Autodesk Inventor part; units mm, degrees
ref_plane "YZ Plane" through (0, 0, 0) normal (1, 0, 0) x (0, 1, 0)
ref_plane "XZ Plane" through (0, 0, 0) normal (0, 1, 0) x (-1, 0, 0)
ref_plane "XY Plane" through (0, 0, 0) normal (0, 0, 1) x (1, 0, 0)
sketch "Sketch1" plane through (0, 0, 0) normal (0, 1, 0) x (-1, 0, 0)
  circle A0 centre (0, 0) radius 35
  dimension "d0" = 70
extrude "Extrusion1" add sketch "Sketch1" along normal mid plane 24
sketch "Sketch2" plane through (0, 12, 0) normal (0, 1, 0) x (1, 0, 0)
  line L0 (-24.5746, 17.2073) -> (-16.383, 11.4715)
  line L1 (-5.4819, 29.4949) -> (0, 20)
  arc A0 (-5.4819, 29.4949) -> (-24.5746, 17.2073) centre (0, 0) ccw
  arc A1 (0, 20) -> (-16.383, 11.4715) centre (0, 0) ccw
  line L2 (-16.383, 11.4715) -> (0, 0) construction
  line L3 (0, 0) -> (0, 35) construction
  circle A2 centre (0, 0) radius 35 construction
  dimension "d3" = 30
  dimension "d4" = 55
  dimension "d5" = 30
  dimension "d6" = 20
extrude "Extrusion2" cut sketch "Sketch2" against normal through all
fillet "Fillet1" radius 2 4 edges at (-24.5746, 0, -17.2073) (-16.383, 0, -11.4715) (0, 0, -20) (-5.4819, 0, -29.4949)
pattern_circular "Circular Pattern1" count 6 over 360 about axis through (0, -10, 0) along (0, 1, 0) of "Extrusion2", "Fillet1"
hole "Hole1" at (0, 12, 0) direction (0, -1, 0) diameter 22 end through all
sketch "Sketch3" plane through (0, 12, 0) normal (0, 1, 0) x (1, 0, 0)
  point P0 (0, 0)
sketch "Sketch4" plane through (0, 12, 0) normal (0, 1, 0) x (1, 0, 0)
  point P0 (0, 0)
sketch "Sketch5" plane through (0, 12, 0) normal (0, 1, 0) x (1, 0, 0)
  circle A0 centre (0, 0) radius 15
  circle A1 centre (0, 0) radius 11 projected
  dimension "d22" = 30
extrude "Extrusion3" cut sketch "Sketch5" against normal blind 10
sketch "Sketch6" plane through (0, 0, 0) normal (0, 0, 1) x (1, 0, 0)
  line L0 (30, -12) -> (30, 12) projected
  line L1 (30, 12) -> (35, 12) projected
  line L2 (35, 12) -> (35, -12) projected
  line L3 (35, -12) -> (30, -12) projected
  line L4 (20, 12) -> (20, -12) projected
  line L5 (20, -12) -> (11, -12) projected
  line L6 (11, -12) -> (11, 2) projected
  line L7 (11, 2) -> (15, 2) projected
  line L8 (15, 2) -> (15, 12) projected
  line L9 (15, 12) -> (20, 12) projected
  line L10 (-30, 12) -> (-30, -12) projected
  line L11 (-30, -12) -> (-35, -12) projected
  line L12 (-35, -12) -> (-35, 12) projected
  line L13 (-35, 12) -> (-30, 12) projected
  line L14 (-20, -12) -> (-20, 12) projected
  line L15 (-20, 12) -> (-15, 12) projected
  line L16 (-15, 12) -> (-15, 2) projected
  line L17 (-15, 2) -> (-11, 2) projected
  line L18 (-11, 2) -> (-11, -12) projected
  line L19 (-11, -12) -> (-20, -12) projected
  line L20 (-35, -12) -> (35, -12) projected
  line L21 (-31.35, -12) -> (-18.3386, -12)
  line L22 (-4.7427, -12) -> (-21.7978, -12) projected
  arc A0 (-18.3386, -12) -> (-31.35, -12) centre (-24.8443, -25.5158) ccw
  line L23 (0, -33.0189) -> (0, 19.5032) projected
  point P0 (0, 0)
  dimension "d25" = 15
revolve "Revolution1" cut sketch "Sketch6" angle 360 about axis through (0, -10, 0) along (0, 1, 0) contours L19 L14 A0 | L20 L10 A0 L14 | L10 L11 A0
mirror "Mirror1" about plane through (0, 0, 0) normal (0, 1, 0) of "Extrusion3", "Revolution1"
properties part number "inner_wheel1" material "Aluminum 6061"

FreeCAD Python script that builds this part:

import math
import FreeCAD as App
import Part
import Sketcher
Q = App.Units.Quantity


def edges_at(feature, points):
    """Names of the edges that pass closest to the given points."""
    edges = feature.Shape.Edges
    near = lambda p: min(range(len(edges)), key=lambda i: edges[i].distToShape(Part.Vertex(*p))[0])
    return sorted({f"Edge{near(p) + 1}" for p in points})

doc = App.newDocument("Part")
body = doc.addObject("PartDesign::Body", "Body")

sketch1 = doc.addObject("Sketcher::SketchObject", "Sketch")
body.addObject(sketch1)
sketch1.AttachmentSupport = (doc.XZ_Plane, [""])
sketch1.MapMode = "FlatFace"
sketch1.addGeometry(Part.Circle(App.Vector(0, 0, 0), App.Vector(0, 0, 1), 35), False)
sketch1.addConstraint([
    Sketcher.Constraint("Coincident", 0, 3, -1, 1),
    Sketcher.Constraint("Diameter", 0, Q("70 mm")),
])
pad1 = doc.addObject("PartDesign::Pad", "Pad")
body.addObject(pad1)
pad1.Profile = sketch1
pad1.Length = 24
pad1.Midplane = True

sketch2 = doc.addObject("Sketcher::SketchObject", "Sketch001")
body.addObject(sketch2)
sketch2.AttachmentSupport = (doc.XZ_Plane, [""])
sketch2.MapMode = "FlatFace"
sketch2.AttachmentOffset = App.Placement(App.Vector(0, 0, -12), App.Rotation())
sketch2.addGeometry([
    Part.ArcOfCircle(Part.Circle(App.Vector(0, 0, 0), App.Vector(0, 0, 1), 30), math.radians(-145), math.radians(-101)),
    Part.LineSegment(App.Vector(-25, -17, 0), App.Vector(-16, -11, 0)),
    Part.ArcOfCircle(Part.Circle(App.Vector(0, 0, 0), App.Vector(0, 0, 1), 20), math.radians(-145), math.radians(-90)),
    Part.LineSegment(App.Vector(0, -20, 0), App.Vector(-5, -29, 0)),
], False)
sketch2.addConstraint([
    Sketcher.Constraint("Coincident", 0, 1, 1, 1),
    Sketcher.Constraint("Coincident", 1, 2, 2, 1),
    Sketcher.Constraint("Coincident", 2, 2, 3, 1),
    Sketcher.Constraint("Coincident", 3, 2, 0, 2),
    Sketcher.Constraint("Coincident", 0, 3, -1, 1),
    Sketcher.Constraint("Coincident", 2, 3, -1, 1),
    Sketcher.Constraint("PointOnObject", 2, 2, -2),
    Sketcher.Constraint("Radius", 0, Q("30 mm")),
    Sketcher.Constraint("Radius", 2, Q("20 mm")),
    Sketcher.Constraint("Angle", 1, Q("35 deg")),
    Sketcher.Constraint("Angle", 3, Q("-120 deg")),
    Sketcher.Constraint("DistanceX", 1, 2, -1, 1, Q("16.383 mm")),
])
pocket1 = doc.addObject("PartDesign::Pocket", "Pocket")
body.addObject(pocket1)
pocket1.Profile = sketch2
pocket1.Type = "ThroughAll"
pocket1.Reversed = True
doc.recompute()

fillet = doc.addObject("PartDesign::Fillet", "Fillet")
body.addObject(fillet)
fillet.Base = (pocket1, edges_at(pocket1, [
    (-24.575, 0, -17.207),
    (-16.383, 0, -11.472),
    (0, 0, -20),
    (-5.482, 0, -29.495),
]))
fillet.Radius = 2
doc.recompute()

polarpattern = doc.addObject("PartDesign::PolarPattern", "PolarPattern")
body.addObject(polarpattern)
polarpattern.Originals = [pocket1, fillet]
polarpattern.Axis = (doc.Y_Axis, [""])
polarpattern.Angle = 360
polarpattern.Occurrences = 6
body.Tip = polarpattern

sketch3 = doc.addObject("Sketcher::SketchObject", "Sketch002")
body.addObject(sketch3)
sketch3.AttachmentSupport = (doc.XZ_Plane, [""])
sketch3.MapMode = "FlatFace"
sketch3.AttachmentOffset = App.Placement(App.Vector(0, 0, -12), App.Rotation())
sketch3.addGeometry(Part.Circle(App.Vector(0, 0, 0), App.Vector(0, 0, 1), 11), False)
sketch3.addConstraint([
    Sketcher.Constraint("Coincident", 0, 3, -1, 1),
    Sketcher.Constraint("Diameter", 0, Q("22 mm")),
])
doc.recompute()
hole = doc.addObject("PartDesign::Hole", "Hole")
body.addObject(hole)
hole.Profile = sketch3
hole.ThreadType = "None"
hole.Diameter = 22
hole.DepthType = "ThroughAll"
hole.Reversed = True

sketch4 = doc.addObject("Sketcher::SketchObject", "Sketch003")
body.addObject(sketch4)
sketch4.AttachmentSupport = (doc.XZ_Plane, [""])
sketch4.MapMode = "FlatFace"
sketch4.AttachmentOffset = App.Placement(App.Vector(0, 0, -12), App.Rotation())
sketch4.addGeometry([
    Part.Circle(App.Vector(0, 0, 0), App.Vector(0, 0, 1), 15),
    Part.Circle(App.Vector(0, 0, 0), App.Vector(0, 0, 1), 11),
], False)
sketch4.addConstraint([
    Sketcher.Constraint("Coincident", 0, 3, -1, 1),
    Sketcher.Constraint("Coincident", 1, 3, -1, 1),
    Sketcher.Constraint("Diameter", 0, Q("30 mm")),
    Sketcher.Constraint("Diameter", 1, Q("22 mm")),
])
pocket2 = doc.addObject("PartDesign::Pocket", "Pocket001")
body.addObject(pocket2)
pocket2.Profile = sketch4
pocket2.Length = 10
pocket2.Reversed = True

sketch5 = doc.addObject("Sketcher::SketchObject", "Sketch004")
body.addObject(sketch5)
sketch5.AttachmentSupport = (doc.XY_Plane, [""])
sketch5.MapMode = "FlatFace"
sketch5.addGeometry([
    Part.ArcOfCircle(Part.Circle(App.Vector(-25, -26, 0), App.Vector(0, 0, 1), 15), math.radians(64), math.radians(116)),
    Part.LineSegment(App.Vector(-31, -12, 0), App.Vector(-18, -12, 0)),
], False)
sketch5.addConstraint([
    Sketcher.Constraint("Coincident", 0, 1, 1, 2),
    Sketcher.Constraint("Coincident", 1, 1, 0, 2),
    Sketcher.Constraint("Horizontal", 1),
    Sketcher.Constraint("Radius", 0, Q("15 mm")),
    Sketcher.Constraint("DistanceY", 0, 1, -1, 1, Q("12 mm")),
    Sketcher.Constraint("DistanceX", 1, 1, -1, 1, Q("31.35 mm")),
    Sketcher.Constraint("DistanceX", 1, 1, 1, 2, Q("13.0114 mm")),
])
groove = doc.addObject("PartDesign::Groove", "Groove")
body.addObject(groove)
groove.Profile = sketch5
groove.ReferenceAxis = (sketch5, ["V_Axis"])
groove.Angle = 360
doc.recompute()

mirrored = doc.addObject("PartDesign::Mirrored", "Mirrored")
body.addObject(mirrored)
mirrored.Originals = [pocket2, groove]
mirrored.MirrorPlane = (doc.XZ_Plane, [""])
body.Tip = mirrored

doc.recompute()
